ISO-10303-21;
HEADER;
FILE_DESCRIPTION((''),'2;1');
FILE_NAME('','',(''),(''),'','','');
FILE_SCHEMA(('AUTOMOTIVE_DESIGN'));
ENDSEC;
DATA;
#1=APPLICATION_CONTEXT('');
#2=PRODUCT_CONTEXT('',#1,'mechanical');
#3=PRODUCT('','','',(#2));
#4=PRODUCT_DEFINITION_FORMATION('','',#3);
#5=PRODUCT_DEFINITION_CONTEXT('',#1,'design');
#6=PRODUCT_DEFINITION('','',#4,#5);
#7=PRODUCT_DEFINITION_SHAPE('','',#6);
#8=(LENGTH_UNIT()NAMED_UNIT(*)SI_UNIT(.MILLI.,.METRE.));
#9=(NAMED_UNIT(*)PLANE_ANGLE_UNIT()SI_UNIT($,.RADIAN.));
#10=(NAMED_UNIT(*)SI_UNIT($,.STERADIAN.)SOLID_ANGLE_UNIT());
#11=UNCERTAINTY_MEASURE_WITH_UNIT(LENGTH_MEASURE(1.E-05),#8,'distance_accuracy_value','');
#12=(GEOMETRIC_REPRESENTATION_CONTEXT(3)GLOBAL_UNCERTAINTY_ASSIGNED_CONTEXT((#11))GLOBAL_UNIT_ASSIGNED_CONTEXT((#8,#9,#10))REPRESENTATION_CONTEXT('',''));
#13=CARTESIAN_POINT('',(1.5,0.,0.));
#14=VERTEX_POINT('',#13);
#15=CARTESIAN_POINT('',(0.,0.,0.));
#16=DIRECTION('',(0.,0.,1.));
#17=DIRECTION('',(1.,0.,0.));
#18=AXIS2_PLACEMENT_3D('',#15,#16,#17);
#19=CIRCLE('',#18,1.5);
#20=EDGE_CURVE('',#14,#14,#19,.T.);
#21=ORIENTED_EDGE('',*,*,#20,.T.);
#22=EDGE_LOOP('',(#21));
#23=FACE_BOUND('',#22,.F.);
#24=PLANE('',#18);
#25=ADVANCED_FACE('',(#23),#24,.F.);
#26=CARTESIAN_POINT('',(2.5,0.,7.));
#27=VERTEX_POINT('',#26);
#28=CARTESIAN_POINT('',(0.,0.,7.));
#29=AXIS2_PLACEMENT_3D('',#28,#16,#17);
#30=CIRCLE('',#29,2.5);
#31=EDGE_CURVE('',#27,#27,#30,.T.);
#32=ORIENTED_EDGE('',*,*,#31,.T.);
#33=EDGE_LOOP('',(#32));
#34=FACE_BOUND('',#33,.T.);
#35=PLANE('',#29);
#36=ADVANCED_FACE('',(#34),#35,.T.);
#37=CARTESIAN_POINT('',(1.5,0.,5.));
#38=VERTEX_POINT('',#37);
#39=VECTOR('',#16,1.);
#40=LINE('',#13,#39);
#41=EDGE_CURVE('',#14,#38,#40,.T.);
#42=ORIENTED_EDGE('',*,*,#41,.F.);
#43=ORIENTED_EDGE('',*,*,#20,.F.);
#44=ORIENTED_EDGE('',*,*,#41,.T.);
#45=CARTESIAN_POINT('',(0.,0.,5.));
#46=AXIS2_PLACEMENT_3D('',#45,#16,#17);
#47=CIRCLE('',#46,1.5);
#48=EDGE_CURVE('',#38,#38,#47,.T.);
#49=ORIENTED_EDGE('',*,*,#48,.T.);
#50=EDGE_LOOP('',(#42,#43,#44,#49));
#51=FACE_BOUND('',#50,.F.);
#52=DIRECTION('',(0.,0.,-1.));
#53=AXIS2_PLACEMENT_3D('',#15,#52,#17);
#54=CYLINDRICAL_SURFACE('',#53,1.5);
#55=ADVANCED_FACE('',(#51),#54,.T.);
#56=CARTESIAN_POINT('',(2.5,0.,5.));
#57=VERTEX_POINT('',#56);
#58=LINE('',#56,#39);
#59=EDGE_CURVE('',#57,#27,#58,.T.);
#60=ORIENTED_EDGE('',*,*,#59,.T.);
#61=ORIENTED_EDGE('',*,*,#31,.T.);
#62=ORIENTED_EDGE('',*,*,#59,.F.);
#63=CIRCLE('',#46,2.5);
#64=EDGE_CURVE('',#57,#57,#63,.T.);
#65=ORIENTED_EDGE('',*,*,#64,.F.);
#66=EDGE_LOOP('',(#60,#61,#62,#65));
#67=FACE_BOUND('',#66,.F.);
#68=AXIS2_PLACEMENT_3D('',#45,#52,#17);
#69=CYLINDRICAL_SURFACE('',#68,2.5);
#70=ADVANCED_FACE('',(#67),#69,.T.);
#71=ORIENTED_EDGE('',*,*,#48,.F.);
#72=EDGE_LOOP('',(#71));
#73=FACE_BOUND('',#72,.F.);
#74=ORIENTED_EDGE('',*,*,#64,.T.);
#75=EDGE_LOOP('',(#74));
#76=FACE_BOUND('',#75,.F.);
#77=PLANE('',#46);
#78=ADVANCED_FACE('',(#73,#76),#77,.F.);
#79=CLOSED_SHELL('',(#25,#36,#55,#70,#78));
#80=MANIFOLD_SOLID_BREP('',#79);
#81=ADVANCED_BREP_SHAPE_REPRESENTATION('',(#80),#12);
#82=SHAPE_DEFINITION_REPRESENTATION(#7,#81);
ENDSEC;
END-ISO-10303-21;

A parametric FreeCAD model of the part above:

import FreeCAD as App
import Part
import Sketcher

V = App.Vector
Q = App.Units.Quantity

doc = App.newDocument("Part")
body = doc.addObject("PartDesign::Body", "Body")

sketch1 = doc.addObject("Sketcher::SketchObject", "Sketch")
body.addObject(sketch1)
sketch1.AttachmentSupport = (doc.XY_Plane, [""])
sketch1.MapMode = "FlatFace"
sketch1.addGeometry(Part.Circle(V(0, 0, 0), V(0, 0, 1), 1.5), False)
sketch1.addConstraint([
    Sketcher.Constraint("Coincident", 0, 3, -1, 1),
    Sketcher.Constraint("Diameter", 0, Q("3 mm")),
])
pad1 = doc.addObject("PartDesign::Pad", "Pad")
body.addObject(pad1)
pad1.Profile = sketch1
pad1.Length = 5

sketch2 = doc.addObject("Sketcher::SketchObject", "Sketch001")
body.addObject(sketch2)
sketch2.AttachmentSupport = (doc.XY_Plane, [""])
sketch2.MapMode = "FlatFace"
sketch2.AttachmentOffset = App.Placement(V(0, 0, 5), App.Rotation())
sketch2.addGeometry(Part.Circle(V(0, 0, 0), V(0, 0, 1), 2.5), False)
sketch2.addConstraint([
    Sketcher.Constraint("Coincident", 0, 3, -1, 1),
    Sketcher.Constraint("Diameter", 0, Q("5 mm")),
])
pad2 = doc.addObject("PartDesign::Pad", "Pad001")
body.addObject(pad2)
pad2.Profile = sketch2
pad2.Length = 2

doc.recompute()
